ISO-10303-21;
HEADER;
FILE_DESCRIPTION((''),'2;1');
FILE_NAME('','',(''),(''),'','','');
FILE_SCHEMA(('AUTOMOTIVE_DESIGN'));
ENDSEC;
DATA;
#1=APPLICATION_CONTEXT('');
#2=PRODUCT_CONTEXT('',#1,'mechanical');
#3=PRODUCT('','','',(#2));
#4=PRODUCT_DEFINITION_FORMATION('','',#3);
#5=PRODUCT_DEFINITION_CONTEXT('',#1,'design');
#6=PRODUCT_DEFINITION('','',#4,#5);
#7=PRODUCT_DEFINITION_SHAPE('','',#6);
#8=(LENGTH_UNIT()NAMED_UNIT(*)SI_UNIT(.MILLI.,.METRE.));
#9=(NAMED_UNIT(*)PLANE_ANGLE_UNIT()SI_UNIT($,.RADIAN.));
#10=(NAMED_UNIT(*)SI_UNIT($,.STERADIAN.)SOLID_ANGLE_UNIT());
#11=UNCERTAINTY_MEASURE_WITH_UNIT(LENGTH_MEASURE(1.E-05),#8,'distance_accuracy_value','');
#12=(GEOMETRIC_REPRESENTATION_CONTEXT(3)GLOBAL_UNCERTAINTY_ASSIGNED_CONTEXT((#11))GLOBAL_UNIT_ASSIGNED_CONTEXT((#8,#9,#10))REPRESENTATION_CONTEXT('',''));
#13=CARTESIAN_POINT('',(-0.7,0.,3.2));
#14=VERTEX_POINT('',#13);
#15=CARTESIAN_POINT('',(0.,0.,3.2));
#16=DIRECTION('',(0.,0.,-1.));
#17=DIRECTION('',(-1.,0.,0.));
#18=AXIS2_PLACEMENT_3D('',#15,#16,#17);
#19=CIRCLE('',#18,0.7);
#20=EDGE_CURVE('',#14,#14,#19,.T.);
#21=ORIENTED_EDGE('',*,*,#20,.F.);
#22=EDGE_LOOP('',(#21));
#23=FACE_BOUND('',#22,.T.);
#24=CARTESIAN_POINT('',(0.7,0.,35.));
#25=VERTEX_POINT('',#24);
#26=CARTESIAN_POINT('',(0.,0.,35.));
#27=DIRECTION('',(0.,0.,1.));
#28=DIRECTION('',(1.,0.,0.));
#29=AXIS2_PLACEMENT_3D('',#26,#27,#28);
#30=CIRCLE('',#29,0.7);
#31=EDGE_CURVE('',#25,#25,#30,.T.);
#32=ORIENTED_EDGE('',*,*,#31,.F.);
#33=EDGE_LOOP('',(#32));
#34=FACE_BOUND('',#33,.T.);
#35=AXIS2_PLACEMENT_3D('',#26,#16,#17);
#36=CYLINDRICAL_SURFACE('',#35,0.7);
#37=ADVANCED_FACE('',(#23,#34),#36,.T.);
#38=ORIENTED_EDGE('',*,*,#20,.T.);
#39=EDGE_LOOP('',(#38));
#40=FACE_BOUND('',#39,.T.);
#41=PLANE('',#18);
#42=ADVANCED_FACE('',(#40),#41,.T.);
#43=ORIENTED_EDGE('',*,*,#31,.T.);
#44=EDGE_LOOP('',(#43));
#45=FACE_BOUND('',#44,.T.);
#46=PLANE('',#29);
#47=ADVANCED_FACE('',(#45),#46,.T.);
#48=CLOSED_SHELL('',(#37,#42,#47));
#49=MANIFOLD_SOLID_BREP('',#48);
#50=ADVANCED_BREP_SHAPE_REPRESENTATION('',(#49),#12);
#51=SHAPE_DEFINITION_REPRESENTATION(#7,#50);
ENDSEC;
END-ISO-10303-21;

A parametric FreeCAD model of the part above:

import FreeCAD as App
import Part
import Sketcher

V = App.Vector

doc = App.newDocument("Part")
body = doc.addObject("PartDesign::Body", "Body")

# Sketch on XY plane
sketch1 = body.newObject("Sketcher::SketchObject", "Sketch")
sketch1.AttachmentSupport = (doc.getObject("XY_Plane"), [""])
sketch1.MapMode = "FlatFace"
sketch1.addGeometry(Part.Circle(V(0, 0, 0), V(0, 0, 1), 0.7), False)
sketch1.addConstraint(Sketcher.Constraint("Coincident", 0, 3, -1, 1))
sketch1.addConstraint(Sketcher.Constraint("Diameter", 0, 1.4))
pad1 = body.newObject("PartDesign::Pad", "Pad")
pad1.Profile = sketch1
pad1.Length = 35

# Sketch on XY plane
sketch2 = body.newObject("Sketcher::SketchObject", "Sketch001")
sketch2.AttachmentSupport = (doc.getObject("XY_Plane"), [""])
sketch2.MapMode = "FlatFace"
sketch2.addGeometry(Part.Circle(V(0, 0, 0), V(0, 0, 1), 1.414954), False)
sketch2.addConstraint(Sketcher.Constraint("Coincident", 0, 3, -1, 1))
sketch2.addConstraint(Sketcher.Constraint("Diameter", 0, 2.829908))
pocket1 = body.newObject("PartDesign::Pocket", "Pocket")
pocket1.Profile = sketch2
pocket1.Length = 3.2
pocket1.Reversed = True

doc.recompute()
